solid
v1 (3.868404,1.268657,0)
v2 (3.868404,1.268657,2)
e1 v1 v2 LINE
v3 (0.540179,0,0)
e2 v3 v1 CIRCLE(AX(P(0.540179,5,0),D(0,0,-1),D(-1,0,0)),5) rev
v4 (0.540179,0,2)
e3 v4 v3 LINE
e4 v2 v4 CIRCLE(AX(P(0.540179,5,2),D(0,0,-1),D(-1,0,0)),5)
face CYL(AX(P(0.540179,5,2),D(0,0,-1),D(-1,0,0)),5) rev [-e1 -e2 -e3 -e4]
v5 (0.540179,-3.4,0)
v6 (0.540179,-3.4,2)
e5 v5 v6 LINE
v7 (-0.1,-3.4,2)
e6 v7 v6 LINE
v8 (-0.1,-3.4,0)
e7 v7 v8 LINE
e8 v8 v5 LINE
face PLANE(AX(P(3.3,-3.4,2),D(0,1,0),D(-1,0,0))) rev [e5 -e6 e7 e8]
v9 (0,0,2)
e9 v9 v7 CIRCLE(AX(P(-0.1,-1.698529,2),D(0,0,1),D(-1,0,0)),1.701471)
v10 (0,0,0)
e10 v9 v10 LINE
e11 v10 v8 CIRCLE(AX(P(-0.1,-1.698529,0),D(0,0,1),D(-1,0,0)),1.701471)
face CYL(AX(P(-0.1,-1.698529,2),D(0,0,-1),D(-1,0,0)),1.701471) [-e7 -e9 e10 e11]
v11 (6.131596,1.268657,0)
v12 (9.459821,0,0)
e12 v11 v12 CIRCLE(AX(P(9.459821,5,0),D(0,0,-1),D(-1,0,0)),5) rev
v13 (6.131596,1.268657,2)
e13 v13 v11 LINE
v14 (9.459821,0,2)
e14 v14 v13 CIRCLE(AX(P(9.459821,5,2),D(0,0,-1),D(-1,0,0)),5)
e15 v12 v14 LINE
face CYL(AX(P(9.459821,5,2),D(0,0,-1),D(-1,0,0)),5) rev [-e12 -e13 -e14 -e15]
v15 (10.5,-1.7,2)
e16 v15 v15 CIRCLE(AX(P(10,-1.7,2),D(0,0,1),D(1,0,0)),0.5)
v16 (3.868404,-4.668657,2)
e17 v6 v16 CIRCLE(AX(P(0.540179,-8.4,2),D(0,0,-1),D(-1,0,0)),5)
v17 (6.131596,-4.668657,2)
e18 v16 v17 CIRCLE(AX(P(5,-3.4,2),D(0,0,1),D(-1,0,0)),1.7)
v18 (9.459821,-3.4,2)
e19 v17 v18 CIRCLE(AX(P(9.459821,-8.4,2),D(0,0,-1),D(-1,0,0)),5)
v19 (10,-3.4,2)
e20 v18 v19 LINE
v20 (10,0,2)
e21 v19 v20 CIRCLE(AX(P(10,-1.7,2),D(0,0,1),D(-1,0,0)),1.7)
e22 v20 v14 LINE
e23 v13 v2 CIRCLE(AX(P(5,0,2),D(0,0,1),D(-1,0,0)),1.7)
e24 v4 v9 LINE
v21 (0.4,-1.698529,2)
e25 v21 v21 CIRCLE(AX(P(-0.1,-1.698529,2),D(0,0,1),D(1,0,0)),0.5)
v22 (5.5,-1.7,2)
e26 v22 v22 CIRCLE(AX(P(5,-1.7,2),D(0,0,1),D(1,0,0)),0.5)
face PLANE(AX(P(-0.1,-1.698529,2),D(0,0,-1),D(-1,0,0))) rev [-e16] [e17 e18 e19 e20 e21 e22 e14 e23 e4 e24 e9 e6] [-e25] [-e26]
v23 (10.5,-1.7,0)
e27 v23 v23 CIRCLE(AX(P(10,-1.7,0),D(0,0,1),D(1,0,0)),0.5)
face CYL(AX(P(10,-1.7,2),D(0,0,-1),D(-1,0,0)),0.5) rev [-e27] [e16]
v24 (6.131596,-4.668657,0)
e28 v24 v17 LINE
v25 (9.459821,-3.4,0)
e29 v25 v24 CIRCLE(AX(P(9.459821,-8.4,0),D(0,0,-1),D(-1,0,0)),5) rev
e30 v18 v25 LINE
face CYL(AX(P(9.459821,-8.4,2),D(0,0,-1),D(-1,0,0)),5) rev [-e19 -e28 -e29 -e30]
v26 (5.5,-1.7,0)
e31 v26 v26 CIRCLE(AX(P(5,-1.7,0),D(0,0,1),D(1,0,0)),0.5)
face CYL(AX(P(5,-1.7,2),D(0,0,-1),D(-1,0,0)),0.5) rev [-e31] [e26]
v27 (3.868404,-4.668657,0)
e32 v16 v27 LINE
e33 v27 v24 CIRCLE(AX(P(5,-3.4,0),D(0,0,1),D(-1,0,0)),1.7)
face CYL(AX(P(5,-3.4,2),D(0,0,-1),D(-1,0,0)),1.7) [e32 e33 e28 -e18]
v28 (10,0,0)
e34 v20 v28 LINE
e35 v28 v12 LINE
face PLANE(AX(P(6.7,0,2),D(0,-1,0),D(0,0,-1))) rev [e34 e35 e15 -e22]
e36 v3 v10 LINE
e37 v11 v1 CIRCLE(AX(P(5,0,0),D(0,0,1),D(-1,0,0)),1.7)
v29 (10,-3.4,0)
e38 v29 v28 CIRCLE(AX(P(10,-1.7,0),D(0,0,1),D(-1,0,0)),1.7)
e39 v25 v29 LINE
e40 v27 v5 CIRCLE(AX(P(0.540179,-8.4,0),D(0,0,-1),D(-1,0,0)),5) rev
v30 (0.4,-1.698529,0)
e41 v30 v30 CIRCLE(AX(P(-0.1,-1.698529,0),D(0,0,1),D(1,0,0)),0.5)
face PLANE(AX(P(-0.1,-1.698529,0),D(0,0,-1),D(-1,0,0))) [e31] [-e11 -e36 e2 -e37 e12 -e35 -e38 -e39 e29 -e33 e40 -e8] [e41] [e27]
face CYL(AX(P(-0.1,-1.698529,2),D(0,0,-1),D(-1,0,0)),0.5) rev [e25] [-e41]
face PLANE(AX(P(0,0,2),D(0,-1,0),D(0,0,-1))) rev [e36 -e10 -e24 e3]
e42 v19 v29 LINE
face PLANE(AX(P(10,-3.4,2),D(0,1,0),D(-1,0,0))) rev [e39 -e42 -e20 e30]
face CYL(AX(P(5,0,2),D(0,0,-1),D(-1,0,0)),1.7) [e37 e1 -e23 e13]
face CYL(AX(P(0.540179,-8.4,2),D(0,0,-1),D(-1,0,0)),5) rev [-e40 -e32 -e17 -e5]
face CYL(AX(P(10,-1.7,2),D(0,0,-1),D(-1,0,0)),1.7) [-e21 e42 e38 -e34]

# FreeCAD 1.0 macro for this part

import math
import FreeCAD as App
import Part
import Sketcher
from FreeCAD import Vector


def edges_at(feature, points):
    """Names of the edges that pass closest to the given points."""
    edges = feature.Shape.Edges
    near = lambda p: min(range(len(edges)), key=lambda i: edges[i].distToShape(Part.Vertex(*p))[0])
    return sorted({f"Edge{near(p) + 1}" for p in points})

doc = App.newDocument("Part")
body = doc.addObject("PartDesign::Body", "Body")

sketch1 = doc.addObject("Sketcher::SketchObject", "Sketch")
body.addObject(sketch1)
sketch1.AttachmentSupport = (doc.XY_Plane, [""])
sketch1.MapMode = "FlatFace"
sketch1.addGeometry(Part.LineSegment(Vector(3.3, 0, 0), Vector(0, 0, 0)), False)
sketch1.addGeometry(Part.ArcOfCircle(Part.Circle(Vector(-0.1, -1.7, 0), Vector(0, 0, 1), 1.7), math.radians(87), math.radians(270)), False)
sketch1.addGeometry(Part.LineSegment(Vector(-0.1, -3.4, 0), Vector(3.3, -3.4, 0)), False)
sketch1.addGeometry(Part.ArcOfCircle(Part.Circle(Vector(5, -3.4, 0), Vector(0, 0, 1), 1.7), math.radians(180), math.radians(360)), False)
sketch1.addGeometry(Part.LineSegment(Vector(6.7, -3.4, 0), Vector(10, -3.4, 0)), False)
sketch1.addGeometry(Part.ArcOfCircle(Part.Circle(Vector(10, -1.7, 0), Vector(0, 0, 1), 1.7), math.radians(-90), math.radians(90)), False)
sketch1.addGeometry(Part.LineSegment(Vector(10, 0, 0), Vector(6.7, 0, 0)), False)
sketch1.addGeometry(Part.ArcOfCircle(Part.Circle(Vector(5, 0, 0), Vector(0, 0, 1), 1.7), math.radians(0), math.radians(180)), False)
sketch1.addGeometry(Part.Circle(Vector(10, -1.7, 0), Vector(0, 0, 1), 0.5), False)
sketch1.addGeometry(Part.Circle(Vector(5, -1.7, 0), Vector(0, 0, 1), 0.5), False)
sketch1.addGeometry(Part.Circle(Vector(-0.1, -1.7, 0), Vector(0, 0, 1), 0.5), False)
sketch1.addConstraint(Sketcher.Constraint("Coincident", 0, 2, 1, 1))
sketch1.addConstraint(Sketcher.Constraint("Tangent", 1, 2, 2, 1))
sketch1.addConstraint(Sketcher.Constraint("Coincident", 2, 2, 3, 1))
sketch1.addConstraint(Sketcher.Constraint("Coincident", 3, 2, 4, 1))
sketch1.addConstraint(Sketcher.Constraint("Tangent", 4, 2, 5, 1))
sketch1.addConstraint(Sketcher.Constraint("Tangent", 5, 2, 6, 1))
sketch1.addConstraint(Sketcher.Constraint("Coincident", 6, 2, 7, 1))
sketch1.addConstraint(Sketcher.Constraint("Coincident", 7, 2, 0, 1))
sketch1.addConstraint(Sketcher.Constraint("Horizontal", 0))
sketch1.addConstraint(Sketcher.Constraint("Horizontal", 2))
sketch1.addConstraint(Sketcher.Constraint("Horizontal", 4))
sketch1.addConstraint(Sketcher.Constraint("Horizontal", 6))
sketch1.addConstraint(Sketcher.Constraint("Coincident", 0, 2, -1, 1))
sketch1.addConstraint(Sketcher.Constraint("Coincident", 8, 3, 5, 3))
sketch1.addConstraint(Sketcher.Constraint("Coincident", 10, 3, 1, 3))
sketch1.addConstraint(Sketcher.Constraint("Equal", 3, 5))
sketch1.addConstraint(Sketcher.Constraint("Equal", 5, 7))
sketch1.addConstraint(Sketcher.Constraint("Equal", 8, 9))
sketch1.addConstraint(Sketcher.Constraint("Equal", 9, 10))
sketch1.addConstraint(Sketcher.Constraint("PointOnObject", 7, 3, -1))
sketch1.addConstraint(Sketcher.Constraint("PointOnObject", 5, 2, -1))
sketch1.addConstraint(Sketcher.Constraint("Horizontal", 8, 3, 9, 3))
sketch1.addConstraint(Sketcher.Constraint("Horizontal", 3, 3, 1, 2))
sketch1.addConstraint(Sketcher.Constraint("Horizontal", 2, 2, 3, 2))
sketch1.addConstraint(Sketcher.Constraint("Vertical", 3, 3, 7, 3))
sketch1.addConstraint(Sketcher.Constraint("Vertical", 7, 3, 9, 3))
sketch1.addConstraint(Sketcher.Constraint("Equal", 0, 4))
sketch1.addConstraint(Sketcher.Constraint("Diameter", 8, 1.0))
sketch1.addConstraint(Sketcher.Constraint("Radius", 3, 1.7))
sketch1.addConstraint(Sketcher.Constraint("DistanceX", 0, 2, 0, 1, 3.3))
sketch1.addConstraint(Sketcher.Constraint("DistanceX", 2, 1, 2, 2, 3.4))
pad1 = doc.addObject("PartDesign::Pad", "Pad")
body.addObject(pad1)
pad1.Profile = sketch1
pad1.Length = 2
doc.recompute()

fillet = doc.addObject("PartDesign::Fillet", "Fillet")
body.addObject(fillet)
fillet.Base = (pad1, edges_at(pad1, [
    (3.3, 0, 1),
    (6.7, 0, 1),
    (6.7, -3.4, 1),
    (3.3, -3.4, 1),
]))
fillet.Radius = 5

doc.recompute()
